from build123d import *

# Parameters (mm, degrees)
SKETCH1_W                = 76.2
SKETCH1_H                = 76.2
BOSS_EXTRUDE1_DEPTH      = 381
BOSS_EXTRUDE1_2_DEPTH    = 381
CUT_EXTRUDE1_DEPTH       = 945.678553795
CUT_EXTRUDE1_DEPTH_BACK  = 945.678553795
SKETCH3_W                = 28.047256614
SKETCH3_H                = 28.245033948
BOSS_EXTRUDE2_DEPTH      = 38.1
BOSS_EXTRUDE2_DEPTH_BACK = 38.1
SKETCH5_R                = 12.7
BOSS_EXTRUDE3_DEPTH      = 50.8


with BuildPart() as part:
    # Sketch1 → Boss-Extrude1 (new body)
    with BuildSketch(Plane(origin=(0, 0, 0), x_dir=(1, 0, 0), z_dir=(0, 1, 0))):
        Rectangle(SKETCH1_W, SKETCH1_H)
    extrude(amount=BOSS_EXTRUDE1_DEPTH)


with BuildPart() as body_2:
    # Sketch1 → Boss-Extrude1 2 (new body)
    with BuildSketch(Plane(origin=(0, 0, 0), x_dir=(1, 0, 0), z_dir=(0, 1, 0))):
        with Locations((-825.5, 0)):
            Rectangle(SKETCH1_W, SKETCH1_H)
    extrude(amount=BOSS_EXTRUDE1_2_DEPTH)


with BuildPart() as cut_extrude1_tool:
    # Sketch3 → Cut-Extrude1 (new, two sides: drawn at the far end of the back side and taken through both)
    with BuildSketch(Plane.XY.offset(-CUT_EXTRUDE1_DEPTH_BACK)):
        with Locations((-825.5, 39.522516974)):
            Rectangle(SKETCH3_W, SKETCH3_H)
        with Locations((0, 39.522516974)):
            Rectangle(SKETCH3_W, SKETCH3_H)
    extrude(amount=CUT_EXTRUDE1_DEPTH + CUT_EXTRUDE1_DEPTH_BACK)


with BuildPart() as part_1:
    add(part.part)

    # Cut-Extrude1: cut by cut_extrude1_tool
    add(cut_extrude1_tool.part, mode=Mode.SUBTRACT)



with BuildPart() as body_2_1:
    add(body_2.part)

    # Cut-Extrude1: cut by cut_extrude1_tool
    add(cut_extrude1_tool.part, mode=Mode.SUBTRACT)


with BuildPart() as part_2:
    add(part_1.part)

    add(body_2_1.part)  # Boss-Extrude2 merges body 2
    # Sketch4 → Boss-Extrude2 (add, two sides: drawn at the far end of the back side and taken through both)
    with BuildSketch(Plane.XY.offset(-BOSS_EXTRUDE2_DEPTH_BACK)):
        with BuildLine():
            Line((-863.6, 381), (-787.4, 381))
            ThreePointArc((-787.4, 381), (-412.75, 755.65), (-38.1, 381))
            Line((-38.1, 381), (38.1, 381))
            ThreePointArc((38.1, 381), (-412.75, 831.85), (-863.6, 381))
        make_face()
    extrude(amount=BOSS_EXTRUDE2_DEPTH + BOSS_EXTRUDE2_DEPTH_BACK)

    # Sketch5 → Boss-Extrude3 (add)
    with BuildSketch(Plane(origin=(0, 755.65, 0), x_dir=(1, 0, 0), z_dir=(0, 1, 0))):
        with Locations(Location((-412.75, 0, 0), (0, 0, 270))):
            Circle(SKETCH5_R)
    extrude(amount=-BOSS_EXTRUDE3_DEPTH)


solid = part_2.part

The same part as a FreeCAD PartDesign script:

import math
import FreeCAD as App
import Part
import Sketcher
from FreeCAD import Vector
Q = App.Units.Quantity


def add_polygon(sketch, points):
    """Adds a closed chain of lines whose ends are joined by coincident constraints."""
    first, n = sketch.GeometryCount, len(points)
    for a, b in zip(points, points[1:] + points[:1]):
        sketch.addGeometry(Part.LineSegment(App.Vector(*a, 0), App.Vector(*b, 0)), False)
    for i in range(n):
        sketch.addConstraint(Sketcher.Constraint("Coincident", first + i, 2, first + (i + 1) % n, 1))

doc = App.newDocument("Part")
body = doc.addObject("PartDesign::Body", "Body")

sketch1 = body.newObject("Sketcher::SketchObject", "Sketch")
sketch1.AttachmentSupport = (doc.getObject("XZ_Plane"), [""])
sketch1.MapMode = "FlatFace"
add_polygon(sketch1, [(-38, -38), (-38, 38), (38, 38), (38, -38)])
sketch1.addConstraint([
    Sketcher.Constraint("Vertical", 0),
    Sketcher.Constraint("Horizontal", 1),
    Sketcher.Constraint("Vertical", 2),
    Sketcher.Constraint("Horizontal", 3),
    Sketcher.Constraint("Symmetric", 0, 2, 2, 2, -1, 1),
    Sketcher.Constraint("Equal", 3, 0),
    Sketcher.Constraint("DistanceX", 1, 1, 1, 2, Q("3 in")),
])
pad1 = body.newObject("PartDesign::Pad", "Pad")
pad1.Profile = sketch1
pad1.Length = Q("15 in")
pad1.Reversed = True
body2 = doc.addObject("PartDesign::Body", "Body001")

sketch2 = body2.newObject("Sketcher::SketchObject", "Sketch001")
sketch2.AttachmentSupport = (doc.getObject("XZ_Plane001"), [""])
sketch2.MapMode = "FlatFace"
add_polygon(sketch2, [(-864, -38), (-864, 38), (-787, 38), (-787, -38)])
sketch2.addConstraint([
    Sketcher.Constraint("Vertical", 0),
    Sketcher.Constraint("Horizontal", 1),
    Sketcher.Constraint("Vertical", 2),
    Sketcher.Constraint("Horizontal", 3),
    Sketcher.Constraint("Equal", 3, 0),
    Sketcher.Constraint("DistanceX", 1, 1, 1, 2, Q("3 in")),
    Sketcher.Constraint("DistanceX", 0, 2, -1, 1, Q("34 in")),
    Sketcher.Constraint("DistanceY", -1, 1, 0, 2, Q("1.5 in")),
])
pad2 = body2.newObject("PartDesign::Pad", "Pad001")
pad2.Profile = sketch2
pad2.Length = Q("15 in")
pad2.Reversed = True
body3 = doc.addObject("PartDesign::Body", "Body002")
body3.AllowCompound = True

sketch3 = body3.newObject("Sketcher::SketchObject", "Sketch002")
sketch3.AttachmentSupport = (doc.getObject("XY_Plane002"), [""])
sketch3.MapMode = "FlatFace"
add_polygon(sketch3, [(-840, 54), (-840, 25), (-811, 25), (-811, 54)])
add_polygon(sketch3, [(-14, 54), (-14, 25), (14, 25), (14, 54)])
sketch3.addConstraint([
    Sketcher.Constraint("Vertical", 0),
    Sketcher.Constraint("Horizontal", 1),
    Sketcher.Constraint("Vertical", 2),
    Sketcher.Constraint("Horizontal", 3),
    Sketcher.Constraint("Vertical", 4),
    Sketcher.Constraint("Horizontal", 5),
    Sketcher.Constraint("Vertical", 6),
    Sketcher.Constraint("Horizontal", 7),
    Sketcher.Constraint("Horizontal", 1, 2, 4, 2),
    Sketcher.Constraint("Horizontal", 3, 2, 6, 2),
    Sketcher.Constraint("Equal", 3, 5),
    Sketcher.Constraint("DistanceY", -1, 1, 0, 2, Q("1 in")),
    Sketcher.Constraint("DistanceX", 0, 2, 4, 2, Q("32.5 in")),
    Sketcher.Constraint("DistanceX", 1, 1, 1, 2, 28.047257),
    Sketcher.Constraint("DistanceY", 0, 2, 0, 1, 28.245034),
    Sketcher.Constraint("DistanceX", 0, 2, -1, 1, 839.523628),
])
pad3 = body3.newObject("PartDesign::Pad", "Pad002")
pad3.Profile = sketch3
pad3.Type = "TwoLengths"
pad3.Length = 945.678554
pad3.Length2 = 945.678554
doc.recompute()

body4 = doc.addObject("PartDesign::Body", "Body003")
body4.BaseFeature = body3
boolean = body.newObject("PartDesign::Boolean", "Boolean")
boolean.Type = "Cut"
boolean.addObjects([body4])
doc.recompute()

boolean2 = body2.newObject("PartDesign::Boolean", "Boolean001")
boolean2.Type = "Cut"
boolean2.addObjects([body3])
body.AllowCompound = True
doc.recompute()

boolean3 = body.newObject("PartDesign::Boolean", "Boolean002")
boolean3.Type = "Fuse"
boolean3.addObjects([body2])

sketch4 = body.newObject("Sketcher::SketchObject", "Sketch003")
sketch4.AttachmentSupport = (doc.getObject("XY_Plane"), [""])
sketch4.MapMode = "FlatFace"
sketch4.addGeometry([
    Part.LineSegment(Vector(-864, 381, 0), Vector(-787, 381, 0)),
    Part.ArcOfCircle(Part.Circle(Vector(-413, 381, 0), Vector(0, 0, 1), 375), math.radians(0), math.radians(180)),
    Part.LineSegment(Vector(-38, 381, 0), Vector(38, 381, 0)),
    Part.ArcOfCircle(Part.Circle(Vector(-413, 381, 0), Vector(0, 0, 1), 451), math.radians(0), math.radians(180)),
], False)
sketch4.addConstraint([
    Sketcher.Constraint("Coincident", 0, 2, 1, 2),
    Sketcher.Constraint("Coincident", 1, 1, 2, 1),
    Sketcher.Constraint("Coincident", 2, 2, 3, 1),
    Sketcher.Constraint("Coincident", 3, 2, 0, 1),
    Sketcher.Constraint("Horizontal", 0),
    Sketcher.Constraint("Horizontal", 2),
    Sketcher.Constraint("Coincident", 3, 3, 1, 3),
    Sketcher.Constraint("Horizontal", 3, 3, 0, 2),
    Sketcher.Constraint("Horizontal", 0, 2, 1, 1),
    Sketcher.Constraint("DistanceX", 0, 1, 0, 2, Q("3 in")),
    Sketcher.Constraint("Radius", 1, Q("14.75 in")),
    Sketcher.Constraint("DistanceY", -1, 1, 1, 3, Q("15 in")),
    Sketcher.Constraint("DistanceX", 0, 2, -1, 1, Q("31 in")),
])
pad4 = body.newObject("PartDesign::Pad", "Pad003")
pad4.Profile = sketch4
pad4.Type = "TwoLengths"
pad4.Length = Q("1.5 in")
pad4.Length2 = Q("1.5 in")

sketch5 = body.newObject("Sketcher::SketchObject", "Sketch004")
sketch5.AttachmentSupport = (doc.getObject("XZ_Plane"), [""])
sketch5.MapMode = "FlatFace"
sketch5.AttachmentOffset = App.Placement(Vector(0, 0, -29.75 * 25.4), App.Rotation())
sketch5.addGeometry(Part.Circle(Vector(-413, 0, 0), Vector(0, 0, 1), 13), False)
sketch5.addConstraint([
    Sketcher.Constraint("PointOnObject", 0, 3, -1),
    Sketcher.Constraint("Diameter", 0, Q("1 in")),
    Sketcher.Constraint("DistanceX", 0, 3, -1, 1, Q("16.25 in")),
])
pad5 = body.newObject("PartDesign::Pad", "Pad004")
pad5.Profile = sketch5
pad5.Length = Q("2 in")

doc.recompute()
